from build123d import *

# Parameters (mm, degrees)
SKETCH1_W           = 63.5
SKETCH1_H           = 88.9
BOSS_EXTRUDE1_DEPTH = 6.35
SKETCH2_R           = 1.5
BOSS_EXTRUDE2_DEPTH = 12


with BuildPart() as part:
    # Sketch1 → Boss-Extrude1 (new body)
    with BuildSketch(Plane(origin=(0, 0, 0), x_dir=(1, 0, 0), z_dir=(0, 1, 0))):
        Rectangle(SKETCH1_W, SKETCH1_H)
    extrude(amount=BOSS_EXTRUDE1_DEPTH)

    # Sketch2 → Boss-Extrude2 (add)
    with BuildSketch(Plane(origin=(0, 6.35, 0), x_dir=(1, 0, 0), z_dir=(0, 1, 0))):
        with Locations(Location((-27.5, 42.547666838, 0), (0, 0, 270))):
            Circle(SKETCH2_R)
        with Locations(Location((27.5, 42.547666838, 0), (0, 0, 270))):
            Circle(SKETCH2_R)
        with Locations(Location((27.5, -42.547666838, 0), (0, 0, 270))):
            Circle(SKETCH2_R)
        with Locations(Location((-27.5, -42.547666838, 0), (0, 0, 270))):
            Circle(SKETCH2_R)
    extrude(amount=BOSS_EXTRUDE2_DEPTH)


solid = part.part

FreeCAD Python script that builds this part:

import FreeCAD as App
import Part
import Sketcher

V = App.Vector
Q = App.Units.Quantity


def add_polygon(sketch, points):
    """Adds a closed chain of lines whose ends are joined by coincident constraints."""
    first, n = sketch.GeometryCount, len(points)
    for a, b in zip(points, points[1:] + points[:1]):
        sketch.addGeometry(Part.LineSegment(App.Vector(*a, 0), App.Vector(*b, 0)), False)
    for i in range(n):
        sketch.addConstraint(Sketcher.Constraint("Coincident", first + i, 2, first + (i + 1) % n, 1))

doc = App.newDocument("Part")
params = doc.addObject("Spreadsheet::Sheet", "Params")
for row, (alias, value) in enumerate([
    ("sketch1_width", "2.5 in"),
    ("sketch1_height", "3.5 in"),
    ("pad1_length", "0.25 in"),
    ("pad2_length", "12 mm"),
], start=1):
    params.set(f"A{row}", alias)
    params.set(f"B{row}", "=" + value)
    params.setAlias(f"B{row}", alias)

body = doc.addObject("PartDesign::Body", "Body")

sketch1 = body.newObject("Sketcher::SketchObject", "Sketch")
sketch1.AttachmentSupport = (doc.getObject("XZ_Plane"), [""])
sketch1.MapMode = "FlatFace"
add_polygon(sketch1, [(-32, -44), (-32, 44), (32, 44), (32, -44)])
sketch1.addConstraint(Sketcher.Constraint("Vertical", 0))
sketch1.addConstraint(Sketcher.Constraint("Horizontal", 1))
sketch1.addConstraint(Sketcher.Constraint("Vertical", 2))
sketch1.addConstraint(Sketcher.Constraint("Horizontal", 3))
sketch1.addConstraint(Sketcher.Constraint("Symmetric", 0, 2, 2, 2, -1, 1))
sketch1.addConstraint(Sketcher.Constraint("DistanceX", 1, 1, 1, 2, Q("2.5 in")))
sketch1.addConstraint(Sketcher.Constraint("DistanceY", 0, 1, 0, 2, Q("3.5 in")))
sketch1.setExpression("Constraints[9]", "Params.sketch1_width")
sketch1.setExpression("Constraints[10]", "Params.sketch1_height")
pad1 = body.newObject("PartDesign::Pad", "Pad")
pad1.Profile = sketch1
pad1.setExpression("Length", "Params.pad1_length")
pad1.Reversed = True

sketch2 = body.newObject("Sketcher::SketchObject", "Sketch001")
sketch2.AttachmentSupport = (doc.getObject("XZ_Plane"), [""])
sketch2.MapMode = "FlatFace"
sketch2.AttachmentOffset = App.Placement(V(0, 0, -0.25 * 25.4), App.Rotation())
sketch2.addGeometry(Part.Circle(V(-27.5, -42.5, 0), V(0, 0, 1), 1.5), False)
sketch2.addGeometry(Part.Circle(V(27.5, -42.5, 0), V(0, 0, 1), 1.5), False)
sketch2.addGeometry(Part.Circle(V(27.5, 42.5, 0), V(0, 0, 1), 1.5), False)
sketch2.addGeometry(Part.Circle(V(-27.5, 42.5, 0), V(0, 0, 1), 1.5), False)
sketch2.addConstraint(Sketcher.Constraint("Equal", 0, 1))
sketch2.addConstraint(Sketcher.Constraint("Equal", 1, 2))
sketch2.addConstraint(Sketcher.Constraint("Equal", 2, 3))
sketch2.addConstraint(Sketcher.Constraint("Symmetric", 0, 3, 2, 3, -1, 1))
sketch2.addConstraint(Sketcher.Constraint("Symmetric", 1, 3, 3, 3, -1, 1))
sketch2.addConstraint(Sketcher.Constraint("Symmetric", 0, 3, 1, 3, -2))
sketch2.addConstraint(Sketcher.Constraint("Diameter", 0, 3.0))
sketch2.addConstraint(Sketcher.Constraint("DistanceX", 0, 3, -1, 1, 27.5))
sketch2.addConstraint(Sketcher.Constraint("DistanceY", 0, 3, -1, 1, 42.547667))
pad2 = body.newObject("PartDesign::Pad", "Pad001")
pad2.Profile = sketch2
pad2.setExpression("Length", "Params.pad2_length")
pad2.Reversed = True

doc.recompute()
